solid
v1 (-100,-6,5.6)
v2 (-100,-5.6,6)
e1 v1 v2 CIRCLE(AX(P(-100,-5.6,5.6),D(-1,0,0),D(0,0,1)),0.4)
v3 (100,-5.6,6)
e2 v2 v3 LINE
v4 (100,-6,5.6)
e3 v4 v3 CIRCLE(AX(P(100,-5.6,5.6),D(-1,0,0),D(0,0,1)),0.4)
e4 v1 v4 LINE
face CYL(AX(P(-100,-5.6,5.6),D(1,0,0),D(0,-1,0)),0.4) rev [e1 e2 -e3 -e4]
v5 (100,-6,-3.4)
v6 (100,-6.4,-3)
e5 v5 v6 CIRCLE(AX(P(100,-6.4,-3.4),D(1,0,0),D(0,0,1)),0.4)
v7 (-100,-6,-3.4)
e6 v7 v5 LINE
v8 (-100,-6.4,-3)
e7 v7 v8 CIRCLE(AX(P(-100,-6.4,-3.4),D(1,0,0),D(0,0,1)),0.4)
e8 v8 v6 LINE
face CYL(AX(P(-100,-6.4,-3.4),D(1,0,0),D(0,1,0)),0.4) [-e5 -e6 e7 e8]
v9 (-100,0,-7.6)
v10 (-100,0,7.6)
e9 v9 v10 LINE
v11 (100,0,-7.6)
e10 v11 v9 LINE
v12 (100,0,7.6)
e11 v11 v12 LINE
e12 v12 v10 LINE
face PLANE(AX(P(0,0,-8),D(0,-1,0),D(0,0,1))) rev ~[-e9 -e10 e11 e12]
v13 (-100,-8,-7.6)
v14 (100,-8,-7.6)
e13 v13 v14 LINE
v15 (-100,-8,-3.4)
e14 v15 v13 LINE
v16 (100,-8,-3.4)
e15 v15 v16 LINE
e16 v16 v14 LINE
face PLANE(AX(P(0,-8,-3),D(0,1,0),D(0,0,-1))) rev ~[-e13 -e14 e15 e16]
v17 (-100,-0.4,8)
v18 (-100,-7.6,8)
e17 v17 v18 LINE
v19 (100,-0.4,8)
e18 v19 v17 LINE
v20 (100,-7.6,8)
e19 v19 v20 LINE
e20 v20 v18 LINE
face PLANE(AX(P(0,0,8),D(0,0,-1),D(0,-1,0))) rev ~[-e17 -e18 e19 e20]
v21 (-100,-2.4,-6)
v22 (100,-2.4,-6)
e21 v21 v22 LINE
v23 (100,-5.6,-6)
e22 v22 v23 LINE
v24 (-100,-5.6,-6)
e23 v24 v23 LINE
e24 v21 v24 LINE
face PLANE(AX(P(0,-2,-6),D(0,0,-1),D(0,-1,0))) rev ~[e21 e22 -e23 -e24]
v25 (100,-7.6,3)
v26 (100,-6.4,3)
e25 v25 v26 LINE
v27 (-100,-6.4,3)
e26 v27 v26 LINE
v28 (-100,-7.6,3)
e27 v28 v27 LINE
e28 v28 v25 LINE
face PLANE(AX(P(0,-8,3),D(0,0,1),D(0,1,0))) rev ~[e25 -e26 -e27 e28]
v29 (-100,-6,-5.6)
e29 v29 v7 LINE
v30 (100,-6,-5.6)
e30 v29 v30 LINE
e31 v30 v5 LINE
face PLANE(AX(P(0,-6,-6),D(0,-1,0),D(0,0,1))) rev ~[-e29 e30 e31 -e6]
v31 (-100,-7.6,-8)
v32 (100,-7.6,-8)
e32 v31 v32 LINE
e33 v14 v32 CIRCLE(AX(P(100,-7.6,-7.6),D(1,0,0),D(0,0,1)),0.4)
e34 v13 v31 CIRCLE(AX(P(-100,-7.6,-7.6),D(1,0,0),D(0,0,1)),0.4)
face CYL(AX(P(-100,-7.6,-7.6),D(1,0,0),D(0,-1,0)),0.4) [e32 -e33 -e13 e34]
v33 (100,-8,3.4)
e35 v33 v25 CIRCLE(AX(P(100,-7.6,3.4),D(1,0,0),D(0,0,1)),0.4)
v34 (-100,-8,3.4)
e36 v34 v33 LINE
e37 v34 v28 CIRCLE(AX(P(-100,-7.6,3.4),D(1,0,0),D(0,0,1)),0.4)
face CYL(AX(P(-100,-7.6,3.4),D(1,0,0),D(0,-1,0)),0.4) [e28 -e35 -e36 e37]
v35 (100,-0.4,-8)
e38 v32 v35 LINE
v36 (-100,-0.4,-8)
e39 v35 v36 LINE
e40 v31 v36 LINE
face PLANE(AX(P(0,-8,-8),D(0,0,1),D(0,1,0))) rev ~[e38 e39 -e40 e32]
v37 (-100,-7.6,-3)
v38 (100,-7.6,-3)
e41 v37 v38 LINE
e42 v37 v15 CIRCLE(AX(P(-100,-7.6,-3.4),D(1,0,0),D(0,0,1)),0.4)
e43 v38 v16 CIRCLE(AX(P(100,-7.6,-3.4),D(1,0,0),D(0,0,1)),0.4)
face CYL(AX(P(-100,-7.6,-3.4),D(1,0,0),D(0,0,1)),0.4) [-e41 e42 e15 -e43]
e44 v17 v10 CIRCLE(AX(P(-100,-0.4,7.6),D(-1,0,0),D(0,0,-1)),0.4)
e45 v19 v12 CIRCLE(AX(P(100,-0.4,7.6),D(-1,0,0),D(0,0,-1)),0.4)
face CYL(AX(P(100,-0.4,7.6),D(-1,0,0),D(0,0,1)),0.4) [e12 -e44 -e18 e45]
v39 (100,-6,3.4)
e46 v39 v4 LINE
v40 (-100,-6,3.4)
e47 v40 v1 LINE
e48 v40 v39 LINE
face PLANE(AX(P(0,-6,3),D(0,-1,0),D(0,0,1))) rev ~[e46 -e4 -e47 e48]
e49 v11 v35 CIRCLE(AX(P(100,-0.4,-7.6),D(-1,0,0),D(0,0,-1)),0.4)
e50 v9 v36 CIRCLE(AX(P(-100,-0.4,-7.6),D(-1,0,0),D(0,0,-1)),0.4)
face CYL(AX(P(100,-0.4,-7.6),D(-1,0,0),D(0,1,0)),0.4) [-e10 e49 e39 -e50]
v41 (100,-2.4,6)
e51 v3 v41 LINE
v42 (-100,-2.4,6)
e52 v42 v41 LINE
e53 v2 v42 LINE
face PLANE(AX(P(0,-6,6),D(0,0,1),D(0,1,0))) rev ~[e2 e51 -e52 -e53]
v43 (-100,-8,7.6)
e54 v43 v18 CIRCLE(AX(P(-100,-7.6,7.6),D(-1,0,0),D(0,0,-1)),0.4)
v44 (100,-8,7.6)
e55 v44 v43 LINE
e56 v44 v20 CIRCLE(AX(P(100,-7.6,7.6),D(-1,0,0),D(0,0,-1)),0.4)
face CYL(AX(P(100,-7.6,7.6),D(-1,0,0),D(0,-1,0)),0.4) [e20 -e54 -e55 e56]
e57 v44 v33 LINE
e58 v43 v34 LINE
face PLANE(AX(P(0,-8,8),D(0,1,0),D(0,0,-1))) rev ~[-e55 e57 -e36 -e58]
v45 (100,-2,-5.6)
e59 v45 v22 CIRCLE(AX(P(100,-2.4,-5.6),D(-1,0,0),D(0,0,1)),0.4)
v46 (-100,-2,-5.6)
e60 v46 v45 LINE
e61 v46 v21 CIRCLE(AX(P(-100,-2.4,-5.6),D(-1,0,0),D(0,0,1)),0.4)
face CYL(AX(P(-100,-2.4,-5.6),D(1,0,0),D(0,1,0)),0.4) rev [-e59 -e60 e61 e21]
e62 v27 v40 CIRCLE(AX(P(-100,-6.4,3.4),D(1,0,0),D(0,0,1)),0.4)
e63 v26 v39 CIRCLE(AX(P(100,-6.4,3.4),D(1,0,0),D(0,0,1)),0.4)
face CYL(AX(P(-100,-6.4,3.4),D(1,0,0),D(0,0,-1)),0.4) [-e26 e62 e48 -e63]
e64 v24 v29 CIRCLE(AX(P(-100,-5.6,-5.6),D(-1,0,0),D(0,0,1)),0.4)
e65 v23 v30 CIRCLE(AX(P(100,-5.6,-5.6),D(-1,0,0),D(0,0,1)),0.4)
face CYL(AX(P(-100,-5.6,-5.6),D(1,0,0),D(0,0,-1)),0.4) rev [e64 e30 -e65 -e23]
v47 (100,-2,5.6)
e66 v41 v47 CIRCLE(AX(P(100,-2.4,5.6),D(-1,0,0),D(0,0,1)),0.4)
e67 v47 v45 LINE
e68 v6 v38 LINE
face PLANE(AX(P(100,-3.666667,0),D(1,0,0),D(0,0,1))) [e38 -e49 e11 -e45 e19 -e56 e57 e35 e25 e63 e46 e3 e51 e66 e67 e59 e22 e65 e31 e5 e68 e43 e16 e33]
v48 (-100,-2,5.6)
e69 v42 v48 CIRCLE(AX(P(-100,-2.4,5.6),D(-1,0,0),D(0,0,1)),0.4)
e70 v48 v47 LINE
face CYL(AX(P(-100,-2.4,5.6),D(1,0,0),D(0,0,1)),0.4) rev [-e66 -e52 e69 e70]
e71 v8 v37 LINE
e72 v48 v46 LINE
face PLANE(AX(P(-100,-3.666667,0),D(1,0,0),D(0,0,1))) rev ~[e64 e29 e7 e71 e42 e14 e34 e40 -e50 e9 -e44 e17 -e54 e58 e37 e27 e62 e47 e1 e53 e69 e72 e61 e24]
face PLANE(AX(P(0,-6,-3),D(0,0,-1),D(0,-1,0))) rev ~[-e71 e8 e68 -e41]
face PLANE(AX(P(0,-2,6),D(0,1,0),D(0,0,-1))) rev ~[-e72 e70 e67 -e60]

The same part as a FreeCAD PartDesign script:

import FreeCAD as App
import Part
import Sketcher

V = App.Vector
Q = App.Units.Quantity


def edges_at(feature, points):
    """Names of the edges that pass closest to the given points."""
    edges = feature.Shape.Edges
    near = lambda p: min(range(len(edges)), key=lambda i: edges[i].distToShape(Part.Vertex(*p))[0])
    return sorted({f"Edge{near(p) + 1}" for p in points})


def add_polygon(sketch, points):
    """Adds a closed chain of lines whose ends are joined by coincident constraints."""
    first, n = sketch.GeometryCount, len(points)
    for a, b in zip(points, points[1:] + points[:1]):
        sketch.addGeometry(Part.LineSegment(App.Vector(*a, 0), App.Vector(*b, 0)), False)
    for i in range(n):
        sketch.addConstraint(Sketcher.Constraint("Coincident", first + i, 2, first + (i + 1) % n, 1))

doc = App.newDocument("Part")
body = doc.addObject("PartDesign::Body", "Body")

sketch1 = body.newObject("Sketcher::SketchObject", "Sketch")
sketch1.AttachmentSupport = (doc.getObject("YZ_Plane"), [""])
sketch1.MapMode = "FlatFace"
add_polygon(sketch1, [(0, 8), (-8, 8), (-8, 3), (-6, 3), (-6, 6), (-2, 6), (-2, -6), (-6, -6), (-6, -3), (-8, -3), (-8, -8), (0, -8)])
sketch1.addConstraint([
    Sketcher.Constraint("Horizontal", 0),
    Sketcher.Constraint("Vertical", 1),
    Sketcher.Constraint("Horizontal", 2),
    Sketcher.Constraint("Vertical", 3),
    Sketcher.Constraint("Horizontal", 4),
    Sketcher.Constraint("Vertical", 5),
    Sketcher.Constraint("Horizontal", 6),
    Sketcher.Constraint("Vertical", 7),
    Sketcher.Constraint("Horizontal", 8),
    Sketcher.Constraint("Vertical", 9),
    Sketcher.Constraint("Horizontal", 10),
    Sketcher.Constraint("Vertical", 11),
    Sketcher.Constraint("Symmetric", 10, 2, 11, 2, -1, 1),
    Sketcher.Constraint("Symmetric", 3, 2, 6, 2, -1),
    Sketcher.Constraint("Symmetric", 1, 2, 8, 2, -1),
    Sketcher.Constraint("DistanceX", 2, 1, 2, 2, Q("2 mm")),
    Sketcher.Constraint("DistanceX", 4, 2, -1, 1, Q("2 mm")),
    Sketcher.Constraint("DistanceY", 3, 2, 0, 2, Q("2 mm")),
    Sketcher.Constraint("DistanceX", 0, 2, 0, 1, Q("8 mm")),
    Sketcher.Constraint("DistanceY", 1, 2, 1, 1, Q("5 mm")),
    Sketcher.Constraint("DistanceY", 5, 2, 5, 1, Q("12 mm")),
])
pad1 = body.newObject("PartDesign::Pad", "Pad")
pad1.Profile = sketch1
pad1.Length = 200
pad1.Midplane = True
doc.recompute()

fillet = body.newObject("PartDesign::Fillet", "Fillet")
fillet.Base = (pad1, edges_at(pad1, [
    (0, -8, 8),
    (0, 0, 8),
    (0, -8, 3),
    (0, -6, 3),
    (0, -6, 6),
    (0, -2, 6),
    (0, -2, -6),
    (0, -6, -6),
    (0, -6, -3),
    (0, -8, -3),
    (0, -8, -8),
    (0, 0, -8),
]))
fillet.Radius = 0.4

doc.recompute()
